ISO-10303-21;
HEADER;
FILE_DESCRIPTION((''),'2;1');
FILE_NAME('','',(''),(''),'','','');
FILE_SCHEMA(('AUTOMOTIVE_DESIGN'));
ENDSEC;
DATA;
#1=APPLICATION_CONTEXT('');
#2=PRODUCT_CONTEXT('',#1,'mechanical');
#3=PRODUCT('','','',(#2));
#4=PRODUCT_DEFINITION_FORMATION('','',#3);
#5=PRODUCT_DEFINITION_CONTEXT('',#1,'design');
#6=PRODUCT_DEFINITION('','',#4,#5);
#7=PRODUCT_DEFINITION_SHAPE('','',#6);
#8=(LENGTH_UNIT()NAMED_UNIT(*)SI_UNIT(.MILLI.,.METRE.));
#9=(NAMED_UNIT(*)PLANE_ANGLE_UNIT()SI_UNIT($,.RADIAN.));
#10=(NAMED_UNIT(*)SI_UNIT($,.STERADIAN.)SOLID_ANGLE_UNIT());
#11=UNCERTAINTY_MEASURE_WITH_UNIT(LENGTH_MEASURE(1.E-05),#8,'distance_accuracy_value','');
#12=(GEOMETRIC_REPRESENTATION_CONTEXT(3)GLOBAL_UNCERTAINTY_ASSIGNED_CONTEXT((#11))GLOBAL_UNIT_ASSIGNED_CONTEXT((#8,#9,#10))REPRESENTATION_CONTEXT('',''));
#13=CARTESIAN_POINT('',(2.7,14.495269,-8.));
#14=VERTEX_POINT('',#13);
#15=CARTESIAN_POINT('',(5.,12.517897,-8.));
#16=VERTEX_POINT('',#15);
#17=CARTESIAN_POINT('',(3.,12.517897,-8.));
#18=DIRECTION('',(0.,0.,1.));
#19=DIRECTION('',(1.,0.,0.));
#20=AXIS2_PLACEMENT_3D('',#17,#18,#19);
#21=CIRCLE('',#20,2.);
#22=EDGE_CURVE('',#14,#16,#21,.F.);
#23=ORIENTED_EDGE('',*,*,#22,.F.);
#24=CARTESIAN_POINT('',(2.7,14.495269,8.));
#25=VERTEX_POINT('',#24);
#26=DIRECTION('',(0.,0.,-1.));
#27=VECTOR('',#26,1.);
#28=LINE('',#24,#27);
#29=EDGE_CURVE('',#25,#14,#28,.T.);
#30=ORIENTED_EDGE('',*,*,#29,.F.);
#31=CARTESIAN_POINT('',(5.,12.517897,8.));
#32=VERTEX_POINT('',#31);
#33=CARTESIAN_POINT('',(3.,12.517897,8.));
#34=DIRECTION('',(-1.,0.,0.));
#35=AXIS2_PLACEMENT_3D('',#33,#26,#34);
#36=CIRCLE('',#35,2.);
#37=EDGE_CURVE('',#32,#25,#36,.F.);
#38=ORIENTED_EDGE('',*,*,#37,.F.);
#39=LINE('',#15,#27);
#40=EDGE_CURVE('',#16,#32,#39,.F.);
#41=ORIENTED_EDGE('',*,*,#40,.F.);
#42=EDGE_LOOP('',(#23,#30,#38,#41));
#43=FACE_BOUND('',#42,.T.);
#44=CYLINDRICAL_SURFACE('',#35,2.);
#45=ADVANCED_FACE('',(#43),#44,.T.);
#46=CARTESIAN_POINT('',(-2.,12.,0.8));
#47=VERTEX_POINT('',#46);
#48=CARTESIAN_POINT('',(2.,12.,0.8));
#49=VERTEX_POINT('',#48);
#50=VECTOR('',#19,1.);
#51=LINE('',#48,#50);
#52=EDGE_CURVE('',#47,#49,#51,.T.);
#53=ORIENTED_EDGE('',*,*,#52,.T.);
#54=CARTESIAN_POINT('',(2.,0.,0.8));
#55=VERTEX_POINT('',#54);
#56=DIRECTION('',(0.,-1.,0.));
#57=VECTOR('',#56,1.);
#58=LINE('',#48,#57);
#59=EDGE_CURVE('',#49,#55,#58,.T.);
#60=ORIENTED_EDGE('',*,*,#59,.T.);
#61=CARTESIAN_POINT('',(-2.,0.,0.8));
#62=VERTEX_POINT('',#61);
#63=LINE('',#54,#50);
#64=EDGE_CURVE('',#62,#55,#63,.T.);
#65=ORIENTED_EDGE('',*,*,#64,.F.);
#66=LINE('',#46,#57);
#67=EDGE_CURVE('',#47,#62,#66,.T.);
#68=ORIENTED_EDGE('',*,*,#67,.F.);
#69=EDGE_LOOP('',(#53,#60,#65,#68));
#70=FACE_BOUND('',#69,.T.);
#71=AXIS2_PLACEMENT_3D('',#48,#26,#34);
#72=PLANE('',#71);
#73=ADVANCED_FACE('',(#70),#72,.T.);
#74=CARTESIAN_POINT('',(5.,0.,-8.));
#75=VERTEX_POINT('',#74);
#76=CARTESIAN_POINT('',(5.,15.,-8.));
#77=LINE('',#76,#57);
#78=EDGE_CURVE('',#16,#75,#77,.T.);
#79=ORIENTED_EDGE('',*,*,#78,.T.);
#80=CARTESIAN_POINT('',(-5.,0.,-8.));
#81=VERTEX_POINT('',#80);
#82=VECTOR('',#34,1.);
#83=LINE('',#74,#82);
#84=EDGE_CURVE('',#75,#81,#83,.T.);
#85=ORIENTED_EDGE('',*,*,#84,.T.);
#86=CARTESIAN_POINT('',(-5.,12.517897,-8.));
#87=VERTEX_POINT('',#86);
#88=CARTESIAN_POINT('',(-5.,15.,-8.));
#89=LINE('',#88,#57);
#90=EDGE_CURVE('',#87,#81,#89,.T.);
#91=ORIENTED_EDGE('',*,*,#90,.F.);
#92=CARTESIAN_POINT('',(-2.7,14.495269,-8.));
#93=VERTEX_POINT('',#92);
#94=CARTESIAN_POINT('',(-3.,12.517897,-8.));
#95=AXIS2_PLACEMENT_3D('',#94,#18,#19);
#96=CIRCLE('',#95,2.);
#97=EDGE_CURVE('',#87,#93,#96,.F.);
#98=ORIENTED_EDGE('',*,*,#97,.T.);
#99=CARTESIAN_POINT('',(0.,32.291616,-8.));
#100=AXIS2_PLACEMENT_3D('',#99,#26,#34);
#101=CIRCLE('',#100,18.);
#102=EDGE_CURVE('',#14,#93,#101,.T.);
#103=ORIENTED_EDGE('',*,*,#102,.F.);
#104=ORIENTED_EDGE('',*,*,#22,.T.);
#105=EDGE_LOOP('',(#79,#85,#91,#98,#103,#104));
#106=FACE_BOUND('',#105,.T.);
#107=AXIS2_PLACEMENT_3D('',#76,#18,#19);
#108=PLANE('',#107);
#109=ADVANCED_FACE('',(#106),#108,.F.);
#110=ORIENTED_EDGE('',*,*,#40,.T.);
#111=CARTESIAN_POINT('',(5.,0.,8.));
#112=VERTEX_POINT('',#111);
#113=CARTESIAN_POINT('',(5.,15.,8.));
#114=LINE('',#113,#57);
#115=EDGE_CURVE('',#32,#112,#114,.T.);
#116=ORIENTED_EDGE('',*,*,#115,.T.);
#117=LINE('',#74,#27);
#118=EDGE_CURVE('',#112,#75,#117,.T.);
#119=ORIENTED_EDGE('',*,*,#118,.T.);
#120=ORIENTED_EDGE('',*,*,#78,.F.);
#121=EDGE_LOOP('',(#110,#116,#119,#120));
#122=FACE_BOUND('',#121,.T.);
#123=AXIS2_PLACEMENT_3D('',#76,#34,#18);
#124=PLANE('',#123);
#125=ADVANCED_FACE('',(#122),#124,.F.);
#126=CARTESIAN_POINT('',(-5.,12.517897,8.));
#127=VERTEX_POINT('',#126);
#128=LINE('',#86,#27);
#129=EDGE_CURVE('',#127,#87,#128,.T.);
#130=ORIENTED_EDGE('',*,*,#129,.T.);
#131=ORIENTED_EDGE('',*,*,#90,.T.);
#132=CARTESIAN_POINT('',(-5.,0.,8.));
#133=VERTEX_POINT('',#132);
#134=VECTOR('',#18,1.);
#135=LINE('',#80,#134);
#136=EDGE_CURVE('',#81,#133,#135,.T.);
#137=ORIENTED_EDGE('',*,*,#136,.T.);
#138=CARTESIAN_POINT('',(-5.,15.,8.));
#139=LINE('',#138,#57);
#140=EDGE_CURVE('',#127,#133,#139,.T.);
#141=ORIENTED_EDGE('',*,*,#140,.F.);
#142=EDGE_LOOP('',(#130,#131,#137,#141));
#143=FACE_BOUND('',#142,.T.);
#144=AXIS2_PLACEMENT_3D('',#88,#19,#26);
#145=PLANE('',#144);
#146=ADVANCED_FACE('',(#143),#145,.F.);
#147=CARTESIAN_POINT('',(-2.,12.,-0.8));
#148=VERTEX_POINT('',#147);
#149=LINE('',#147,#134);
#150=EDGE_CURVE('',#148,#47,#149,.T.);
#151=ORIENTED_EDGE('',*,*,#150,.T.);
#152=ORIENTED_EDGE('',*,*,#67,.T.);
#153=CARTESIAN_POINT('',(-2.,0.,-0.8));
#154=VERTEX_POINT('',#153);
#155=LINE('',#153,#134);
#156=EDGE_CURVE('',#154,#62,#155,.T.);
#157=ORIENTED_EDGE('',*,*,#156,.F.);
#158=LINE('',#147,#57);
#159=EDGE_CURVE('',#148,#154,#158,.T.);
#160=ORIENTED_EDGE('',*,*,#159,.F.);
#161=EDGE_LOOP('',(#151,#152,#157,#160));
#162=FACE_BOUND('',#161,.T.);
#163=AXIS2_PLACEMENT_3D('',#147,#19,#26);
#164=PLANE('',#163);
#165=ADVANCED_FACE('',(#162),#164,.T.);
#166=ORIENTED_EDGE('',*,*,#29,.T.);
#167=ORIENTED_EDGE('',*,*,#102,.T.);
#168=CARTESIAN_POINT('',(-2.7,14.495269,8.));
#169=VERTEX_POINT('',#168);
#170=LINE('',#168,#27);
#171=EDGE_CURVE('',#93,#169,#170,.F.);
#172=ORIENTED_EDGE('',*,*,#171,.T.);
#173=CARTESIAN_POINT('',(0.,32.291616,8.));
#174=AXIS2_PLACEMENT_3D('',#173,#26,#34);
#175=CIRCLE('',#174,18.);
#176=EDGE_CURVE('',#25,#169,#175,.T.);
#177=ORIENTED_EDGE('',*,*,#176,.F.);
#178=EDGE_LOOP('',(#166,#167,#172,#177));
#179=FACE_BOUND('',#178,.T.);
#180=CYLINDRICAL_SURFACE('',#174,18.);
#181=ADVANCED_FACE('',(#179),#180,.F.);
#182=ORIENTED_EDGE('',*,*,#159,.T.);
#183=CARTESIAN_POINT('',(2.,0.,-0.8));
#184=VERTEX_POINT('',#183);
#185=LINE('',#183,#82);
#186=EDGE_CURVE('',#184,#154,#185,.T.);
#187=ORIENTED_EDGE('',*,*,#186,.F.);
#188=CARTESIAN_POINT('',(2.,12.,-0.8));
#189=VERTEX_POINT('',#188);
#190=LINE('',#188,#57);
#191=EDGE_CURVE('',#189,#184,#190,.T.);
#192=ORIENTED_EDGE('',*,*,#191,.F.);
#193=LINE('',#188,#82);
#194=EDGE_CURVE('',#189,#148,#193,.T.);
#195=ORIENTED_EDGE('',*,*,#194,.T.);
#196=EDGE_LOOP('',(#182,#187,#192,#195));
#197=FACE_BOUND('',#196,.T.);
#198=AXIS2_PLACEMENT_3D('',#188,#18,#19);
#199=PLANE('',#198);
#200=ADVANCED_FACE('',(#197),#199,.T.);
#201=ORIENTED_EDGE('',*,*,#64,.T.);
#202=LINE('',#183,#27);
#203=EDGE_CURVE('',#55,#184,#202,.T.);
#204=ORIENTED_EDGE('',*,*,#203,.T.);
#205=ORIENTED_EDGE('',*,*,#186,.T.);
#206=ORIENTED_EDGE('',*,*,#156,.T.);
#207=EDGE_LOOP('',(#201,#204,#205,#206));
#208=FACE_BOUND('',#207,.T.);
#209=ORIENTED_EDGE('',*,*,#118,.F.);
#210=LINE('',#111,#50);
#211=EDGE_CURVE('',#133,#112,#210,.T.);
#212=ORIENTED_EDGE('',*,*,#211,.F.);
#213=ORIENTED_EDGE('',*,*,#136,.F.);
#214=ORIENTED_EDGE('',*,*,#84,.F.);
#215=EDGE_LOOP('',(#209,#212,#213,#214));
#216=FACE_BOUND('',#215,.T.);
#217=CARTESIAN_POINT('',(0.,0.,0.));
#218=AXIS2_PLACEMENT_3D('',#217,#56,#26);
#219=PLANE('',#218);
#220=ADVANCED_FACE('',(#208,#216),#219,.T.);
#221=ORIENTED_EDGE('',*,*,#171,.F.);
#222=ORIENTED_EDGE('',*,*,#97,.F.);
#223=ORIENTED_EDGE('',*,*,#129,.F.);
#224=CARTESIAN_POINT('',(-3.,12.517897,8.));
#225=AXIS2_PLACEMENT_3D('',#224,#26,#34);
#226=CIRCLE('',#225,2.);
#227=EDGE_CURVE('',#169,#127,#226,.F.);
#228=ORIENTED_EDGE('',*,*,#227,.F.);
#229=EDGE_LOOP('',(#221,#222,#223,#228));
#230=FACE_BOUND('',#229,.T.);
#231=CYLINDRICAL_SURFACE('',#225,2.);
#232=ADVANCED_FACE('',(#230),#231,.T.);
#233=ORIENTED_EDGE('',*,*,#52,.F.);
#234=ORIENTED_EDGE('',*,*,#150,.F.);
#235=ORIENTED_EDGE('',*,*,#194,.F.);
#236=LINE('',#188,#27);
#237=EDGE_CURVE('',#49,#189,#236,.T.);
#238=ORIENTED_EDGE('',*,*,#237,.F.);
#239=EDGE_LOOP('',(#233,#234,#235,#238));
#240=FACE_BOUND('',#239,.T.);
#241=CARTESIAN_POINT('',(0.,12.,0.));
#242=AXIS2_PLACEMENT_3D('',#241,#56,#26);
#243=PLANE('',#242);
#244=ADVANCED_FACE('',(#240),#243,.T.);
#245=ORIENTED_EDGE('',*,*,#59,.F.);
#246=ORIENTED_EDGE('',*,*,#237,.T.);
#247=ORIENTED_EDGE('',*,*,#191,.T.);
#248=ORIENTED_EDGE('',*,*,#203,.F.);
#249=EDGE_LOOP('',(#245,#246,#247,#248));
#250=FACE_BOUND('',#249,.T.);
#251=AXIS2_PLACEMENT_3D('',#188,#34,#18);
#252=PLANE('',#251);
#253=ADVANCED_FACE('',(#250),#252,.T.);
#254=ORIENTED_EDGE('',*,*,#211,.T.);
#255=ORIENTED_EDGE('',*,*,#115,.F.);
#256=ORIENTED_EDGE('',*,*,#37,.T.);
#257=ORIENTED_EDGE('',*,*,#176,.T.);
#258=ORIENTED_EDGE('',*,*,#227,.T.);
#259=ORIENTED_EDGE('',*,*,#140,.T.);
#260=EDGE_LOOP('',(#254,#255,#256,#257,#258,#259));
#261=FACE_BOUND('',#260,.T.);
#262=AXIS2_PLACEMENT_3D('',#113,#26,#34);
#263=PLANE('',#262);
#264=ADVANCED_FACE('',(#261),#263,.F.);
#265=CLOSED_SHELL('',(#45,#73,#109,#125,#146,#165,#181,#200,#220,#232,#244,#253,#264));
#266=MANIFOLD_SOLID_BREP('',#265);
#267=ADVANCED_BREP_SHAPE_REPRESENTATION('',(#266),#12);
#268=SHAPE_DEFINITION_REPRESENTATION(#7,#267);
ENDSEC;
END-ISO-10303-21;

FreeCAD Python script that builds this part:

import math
import FreeCAD as App
import Part
import Sketcher
from FreeCAD import Vector
Q = App.Units.Quantity


def edges_at(feature, points):
    """Names of the edges that pass closest to the given points."""
    edges = feature.Shape.Edges
    near = lambda p: min(range(len(edges)), key=lambda i: edges[i].distToShape(Part.Vertex(*p))[0])
    return sorted({f"Edge{near(p) + 1}" for p in points})

doc = App.newDocument("Part")
params = doc.addObject("Spreadsheet::Sheet", "Params")
for row, (alias, value) in enumerate([
    ("sketch1_width", "10 mm"),
    ("sketch1_height", "16 mm"),
    ("pad1_length", "15 mm"),
    ("sketch2_radius", "18 mm"),
    ("sketch2_width", "10 mm"),
    ("fillet_radius", "2 mm"),
    ("sketch3_width", "4 mm"),
    ("sketch3_height", "1.6 mm"),
    ("pocket2_length", "12 mm"),
], start=1):
    params.set(f"A{row}", alias)
    params.set(f"B{row}", "=" + value)
    params.setAlias(f"B{row}", alias)

body = doc.addObject("PartDesign::Body", "Body")

# Sketch on XZ plane
sketch1 = doc.addObject("Sketcher::SketchObject", "Sketch")
body.addObject(sketch1)
sketch1.AttachmentSupport = (doc.XZ_Plane, [""])
sketch1.MapMode = "FlatFace"
sketch1.addGeometry([
    Part.LineSegment(Vector(-5, -8, 0), Vector(-5, 8, 0)),
    Part.LineSegment(Vector(-5, 8, 0), Vector(5, 8, 0)),
    Part.LineSegment(Vector(5, 8, 0), Vector(5, -8, 0)),
    Part.LineSegment(Vector(5, -8, 0), Vector(-5, -8, 0)),
], False)
sketch1.addConstraint([
    Sketcher.Constraint("Coincident", 0, 2, 1, 1),
    Sketcher.Constraint("Coincident", 1, 2, 2, 1),
    Sketcher.Constraint("Coincident", 2, 2, 3, 1),
    Sketcher.Constraint("Coincident", 3, 2, 0, 1),
    Sketcher.Constraint("Vertical", 0),
    Sketcher.Constraint("Horizontal", 1),
    Sketcher.Constraint("Vertical", 2),
    Sketcher.Constraint("Horizontal", 3),
    Sketcher.Constraint("Symmetric", 0, 2, 2, 2, -1, 1),
    Sketcher.Constraint("DistanceX", 1, 1, 1, 2, Q("10 mm")),
    Sketcher.Constraint("DistanceY", 0, 1, 0, 2, Q("16 mm")),
])
sketch1.setExpression("Constraints[9]", "Params.sketch1_width")
sketch1.setExpression("Constraints[10]", "Params.sketch1_height")
pad1 = doc.addObject("PartDesign::Pad", "Pad")
body.addObject(pad1)
pad1.Profile = sketch1
pad1.setExpression("Length", "Params.pad1_length")
pad1.Reversed = True

# Sketch on XY plane
sketch2 = doc.addObject("Sketcher::SketchObject", "Sketch001")
body.addObject(sketch2)
sketch2.AttachmentSupport = (doc.XY_Plane, [""])
sketch2.MapMode = "FlatFace"
sketch2.AttachmentOffset = App.Placement(Vector(0, 0, -8), App.Rotation())
sketch2.addGeometry([
    Part.LineSegment(Vector(-5, 15, 0), Vector(5, 15, 0)),
    Part.ArcOfCircle(Part.Circle(Vector(0, 32, 0), Vector(0, 0, 1), 18), math.radians(-106), math.radians(-74)),
], False)
sketch2.addConstraint([
    Sketcher.Constraint("Coincident", 0, 1, 1, 1),
    Sketcher.Constraint("Coincident", 1, 2, 0, 2),
    Sketcher.Constraint("Horizontal", 0),
    Sketcher.Constraint("PointOnObject", 1, 3, -2),
    Sketcher.Constraint("Radius", 1, Q("18 mm")),
    Sketcher.Constraint("DistanceX", 0, 1, 0, 2, Q("10 mm")),
    Sketcher.Constraint("DistanceY", -1, 1, 0, 1, Q("15 mm")),
])
sketch2.setExpression("Constraints[4]", "Params.sketch2_radius")
sketch2.setExpression("Constraints[5]", "Params.sketch2_width")
pocket1 = doc.addObject("PartDesign::Pocket", "Pocket")
body.addObject(pocket1)
pocket1.Profile = sketch2
pocket1.Type = "ThroughAll"
pocket1.Reversed = True
doc.recompute()

fillet = doc.addObject("PartDesign::Fillet", "Fillet")
body.addObject(fillet)
fillet.Base = (pocket1, edges_at(pocket1, [(5, 15, 0), (-5, 15, 0)]))
fillet.setExpression("Radius", "Params.fillet_radius")

# Sketch on XZ plane
sketch3 = doc.addObject("Sketcher::SketchObject", "Sketch002")
body.addObject(sketch3)
sketch3.AttachmentSupport = (doc.XZ_Plane, [""])
sketch3.MapMode = "FlatFace"
sketch3.addGeometry([
    Part.LineSegment(Vector(-2, -0.8, 0), Vector(-2, 0.8, 0)),
    Part.LineSegment(Vector(-2, 0.8, 0), Vector(2, 0.8, 0)),
    Part.LineSegment(Vector(2, 0.8, 0), Vector(2, -0.8, 0)),
    Part.LineSegment(Vector(2, -0.8, 0), Vector(-2, -0.8, 0)),
], False)
sketch3.addConstraint([
    Sketcher.Constraint("Coincident", 0, 2, 1, 1),
    Sketcher.Constraint("Coincident", 1, 2, 2, 1),
    Sketcher.Constraint("Coincident", 2, 2, 3, 1),
    Sketcher.Constraint("Coincident", 3, 2, 0, 1),
    Sketcher.Constraint("Vertical", 0),
    Sketcher.Constraint("Horizontal", 1),
    Sketcher.Constraint("Vertical", 2),
    Sketcher.Constraint("Horizontal", 3),
    Sketcher.Constraint("Symmetric", 0, 2, 2, 2, -1, 1),
    Sketcher.Constraint("DistanceX", 1, 1, 1, 2, Q("4 mm")),
    Sketcher.Constraint("DistanceY", 0, 1, 0, 2, Q("1.6 mm")),
])
sketch3.setExpression("Constraints[9]", "Params.sketch3_width")
sketch3.setExpression("Constraints[10]", "Params.sketch3_height")
pocket2 = doc.addObject("PartDesign::Pocket", "Pocket001")
body.addObject(pocket2)
pocket2.Profile = sketch3
pocket2.setExpression("Length", "Params.pocket2_length")

doc.recompute()
